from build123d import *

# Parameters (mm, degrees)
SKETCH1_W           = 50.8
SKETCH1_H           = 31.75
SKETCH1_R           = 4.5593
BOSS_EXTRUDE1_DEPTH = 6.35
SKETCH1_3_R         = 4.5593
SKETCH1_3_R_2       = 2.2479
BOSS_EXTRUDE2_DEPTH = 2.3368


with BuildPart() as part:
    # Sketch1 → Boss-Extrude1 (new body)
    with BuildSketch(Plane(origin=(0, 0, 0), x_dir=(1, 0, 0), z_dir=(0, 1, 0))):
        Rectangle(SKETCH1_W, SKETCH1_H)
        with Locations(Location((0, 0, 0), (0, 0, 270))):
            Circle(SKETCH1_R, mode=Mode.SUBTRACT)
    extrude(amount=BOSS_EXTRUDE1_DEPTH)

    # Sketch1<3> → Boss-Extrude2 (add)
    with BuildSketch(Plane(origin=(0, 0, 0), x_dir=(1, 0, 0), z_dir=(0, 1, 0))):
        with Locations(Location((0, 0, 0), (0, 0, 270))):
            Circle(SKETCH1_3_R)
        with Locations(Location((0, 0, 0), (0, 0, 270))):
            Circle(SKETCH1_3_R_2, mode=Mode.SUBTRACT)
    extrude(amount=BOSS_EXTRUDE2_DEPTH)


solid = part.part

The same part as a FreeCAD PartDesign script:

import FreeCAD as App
import Part
import Sketcher

V = App.Vector
Q = App.Units.Quantity


def add_polygon(sketch, points):
    """Adds a closed chain of lines whose ends are joined by coincident constraints."""
    first, n = sketch.GeometryCount, len(points)
    for a, b in zip(points, points[1:] + points[:1]):
        sketch.addGeometry(Part.LineSegment(App.Vector(*a, 0), App.Vector(*b, 0)), False)
    for i in range(n):
        sketch.addConstraint(Sketcher.Constraint("Coincident", first + i, 2, first + (i + 1) % n, 1))

doc = App.newDocument("Part")
body = doc.addObject("PartDesign::Body", "Body")

# Sketch on XZ plane
sketch1 = body.newObject("Sketcher::SketchObject", "Sketch")
sketch1.AttachmentSupport = (doc.getObject("XZ_Plane"), [""])
sketch1.MapMode = "FlatFace"
add_polygon(sketch1, [(-25.4, -15.9), (-25.4, 15.9), (25.4, 15.9), (25.4, -15.9)])  # lines 0-3
sketch1.addGeometry(Part.Circle(V(0, 0, 0), V(0, 0, 1), 4.6), False)  # 4
sketch1.addConstraint([
    Sketcher.Constraint("Vertical", 0),
    Sketcher.Constraint("Horizontal", 1),
    Sketcher.Constraint("Vertical", 2),
    Sketcher.Constraint("Horizontal", 3),
    Sketcher.Constraint("Coincident", 4, 3, -1, 1),
    Sketcher.Constraint("Symmetric", 0, 2, 2, 2, -1, 1),
    Sketcher.Constraint("DistanceX", 1, 1, 1, 2, Q("2 in")),
    Sketcher.Constraint("Diameter", 4, Q("0.359 in")),
    Sketcher.Constraint("DistanceY", 0, 1, 0, 2, Q("1.25 in")),
])
pad1 = body.newObject("PartDesign::Pad", "Pad")
pad1.Profile = sketch1
pad1.Length = Q("0.25 in")
pad1.Reversed = True

# Sketch on XZ plane
sketch2 = body.newObject("Sketcher::SketchObject", "Sketch001")
sketch2.AttachmentSupport = (doc.getObject("XZ_Plane"), [""])
sketch2.MapMode = "FlatFace"
sketch2.addGeometry([
    Part.Circle(V(0, 0, 0), V(0, 0, 1), 4.6),
    Part.Circle(V(0, 0, 0), V(0, 0, 1), 2.2),
], False)
sketch2.addConstraint([
    Sketcher.Constraint("Coincident", 0, 3, -1, 1),
    Sketcher.Constraint("Coincident", 1, 3, -1, 1),
    Sketcher.Constraint("Diameter", 0, Q("0.359 in")),
    Sketcher.Constraint("Diameter", 1, Q("0.177 in")),
])
pad2 = body.newObject("PartDesign::Pad", "Pad001")
pad2.Profile = sketch2
pad2.Length = Q("0.092 in")
pad2.Reversed = True

doc.recompute()
